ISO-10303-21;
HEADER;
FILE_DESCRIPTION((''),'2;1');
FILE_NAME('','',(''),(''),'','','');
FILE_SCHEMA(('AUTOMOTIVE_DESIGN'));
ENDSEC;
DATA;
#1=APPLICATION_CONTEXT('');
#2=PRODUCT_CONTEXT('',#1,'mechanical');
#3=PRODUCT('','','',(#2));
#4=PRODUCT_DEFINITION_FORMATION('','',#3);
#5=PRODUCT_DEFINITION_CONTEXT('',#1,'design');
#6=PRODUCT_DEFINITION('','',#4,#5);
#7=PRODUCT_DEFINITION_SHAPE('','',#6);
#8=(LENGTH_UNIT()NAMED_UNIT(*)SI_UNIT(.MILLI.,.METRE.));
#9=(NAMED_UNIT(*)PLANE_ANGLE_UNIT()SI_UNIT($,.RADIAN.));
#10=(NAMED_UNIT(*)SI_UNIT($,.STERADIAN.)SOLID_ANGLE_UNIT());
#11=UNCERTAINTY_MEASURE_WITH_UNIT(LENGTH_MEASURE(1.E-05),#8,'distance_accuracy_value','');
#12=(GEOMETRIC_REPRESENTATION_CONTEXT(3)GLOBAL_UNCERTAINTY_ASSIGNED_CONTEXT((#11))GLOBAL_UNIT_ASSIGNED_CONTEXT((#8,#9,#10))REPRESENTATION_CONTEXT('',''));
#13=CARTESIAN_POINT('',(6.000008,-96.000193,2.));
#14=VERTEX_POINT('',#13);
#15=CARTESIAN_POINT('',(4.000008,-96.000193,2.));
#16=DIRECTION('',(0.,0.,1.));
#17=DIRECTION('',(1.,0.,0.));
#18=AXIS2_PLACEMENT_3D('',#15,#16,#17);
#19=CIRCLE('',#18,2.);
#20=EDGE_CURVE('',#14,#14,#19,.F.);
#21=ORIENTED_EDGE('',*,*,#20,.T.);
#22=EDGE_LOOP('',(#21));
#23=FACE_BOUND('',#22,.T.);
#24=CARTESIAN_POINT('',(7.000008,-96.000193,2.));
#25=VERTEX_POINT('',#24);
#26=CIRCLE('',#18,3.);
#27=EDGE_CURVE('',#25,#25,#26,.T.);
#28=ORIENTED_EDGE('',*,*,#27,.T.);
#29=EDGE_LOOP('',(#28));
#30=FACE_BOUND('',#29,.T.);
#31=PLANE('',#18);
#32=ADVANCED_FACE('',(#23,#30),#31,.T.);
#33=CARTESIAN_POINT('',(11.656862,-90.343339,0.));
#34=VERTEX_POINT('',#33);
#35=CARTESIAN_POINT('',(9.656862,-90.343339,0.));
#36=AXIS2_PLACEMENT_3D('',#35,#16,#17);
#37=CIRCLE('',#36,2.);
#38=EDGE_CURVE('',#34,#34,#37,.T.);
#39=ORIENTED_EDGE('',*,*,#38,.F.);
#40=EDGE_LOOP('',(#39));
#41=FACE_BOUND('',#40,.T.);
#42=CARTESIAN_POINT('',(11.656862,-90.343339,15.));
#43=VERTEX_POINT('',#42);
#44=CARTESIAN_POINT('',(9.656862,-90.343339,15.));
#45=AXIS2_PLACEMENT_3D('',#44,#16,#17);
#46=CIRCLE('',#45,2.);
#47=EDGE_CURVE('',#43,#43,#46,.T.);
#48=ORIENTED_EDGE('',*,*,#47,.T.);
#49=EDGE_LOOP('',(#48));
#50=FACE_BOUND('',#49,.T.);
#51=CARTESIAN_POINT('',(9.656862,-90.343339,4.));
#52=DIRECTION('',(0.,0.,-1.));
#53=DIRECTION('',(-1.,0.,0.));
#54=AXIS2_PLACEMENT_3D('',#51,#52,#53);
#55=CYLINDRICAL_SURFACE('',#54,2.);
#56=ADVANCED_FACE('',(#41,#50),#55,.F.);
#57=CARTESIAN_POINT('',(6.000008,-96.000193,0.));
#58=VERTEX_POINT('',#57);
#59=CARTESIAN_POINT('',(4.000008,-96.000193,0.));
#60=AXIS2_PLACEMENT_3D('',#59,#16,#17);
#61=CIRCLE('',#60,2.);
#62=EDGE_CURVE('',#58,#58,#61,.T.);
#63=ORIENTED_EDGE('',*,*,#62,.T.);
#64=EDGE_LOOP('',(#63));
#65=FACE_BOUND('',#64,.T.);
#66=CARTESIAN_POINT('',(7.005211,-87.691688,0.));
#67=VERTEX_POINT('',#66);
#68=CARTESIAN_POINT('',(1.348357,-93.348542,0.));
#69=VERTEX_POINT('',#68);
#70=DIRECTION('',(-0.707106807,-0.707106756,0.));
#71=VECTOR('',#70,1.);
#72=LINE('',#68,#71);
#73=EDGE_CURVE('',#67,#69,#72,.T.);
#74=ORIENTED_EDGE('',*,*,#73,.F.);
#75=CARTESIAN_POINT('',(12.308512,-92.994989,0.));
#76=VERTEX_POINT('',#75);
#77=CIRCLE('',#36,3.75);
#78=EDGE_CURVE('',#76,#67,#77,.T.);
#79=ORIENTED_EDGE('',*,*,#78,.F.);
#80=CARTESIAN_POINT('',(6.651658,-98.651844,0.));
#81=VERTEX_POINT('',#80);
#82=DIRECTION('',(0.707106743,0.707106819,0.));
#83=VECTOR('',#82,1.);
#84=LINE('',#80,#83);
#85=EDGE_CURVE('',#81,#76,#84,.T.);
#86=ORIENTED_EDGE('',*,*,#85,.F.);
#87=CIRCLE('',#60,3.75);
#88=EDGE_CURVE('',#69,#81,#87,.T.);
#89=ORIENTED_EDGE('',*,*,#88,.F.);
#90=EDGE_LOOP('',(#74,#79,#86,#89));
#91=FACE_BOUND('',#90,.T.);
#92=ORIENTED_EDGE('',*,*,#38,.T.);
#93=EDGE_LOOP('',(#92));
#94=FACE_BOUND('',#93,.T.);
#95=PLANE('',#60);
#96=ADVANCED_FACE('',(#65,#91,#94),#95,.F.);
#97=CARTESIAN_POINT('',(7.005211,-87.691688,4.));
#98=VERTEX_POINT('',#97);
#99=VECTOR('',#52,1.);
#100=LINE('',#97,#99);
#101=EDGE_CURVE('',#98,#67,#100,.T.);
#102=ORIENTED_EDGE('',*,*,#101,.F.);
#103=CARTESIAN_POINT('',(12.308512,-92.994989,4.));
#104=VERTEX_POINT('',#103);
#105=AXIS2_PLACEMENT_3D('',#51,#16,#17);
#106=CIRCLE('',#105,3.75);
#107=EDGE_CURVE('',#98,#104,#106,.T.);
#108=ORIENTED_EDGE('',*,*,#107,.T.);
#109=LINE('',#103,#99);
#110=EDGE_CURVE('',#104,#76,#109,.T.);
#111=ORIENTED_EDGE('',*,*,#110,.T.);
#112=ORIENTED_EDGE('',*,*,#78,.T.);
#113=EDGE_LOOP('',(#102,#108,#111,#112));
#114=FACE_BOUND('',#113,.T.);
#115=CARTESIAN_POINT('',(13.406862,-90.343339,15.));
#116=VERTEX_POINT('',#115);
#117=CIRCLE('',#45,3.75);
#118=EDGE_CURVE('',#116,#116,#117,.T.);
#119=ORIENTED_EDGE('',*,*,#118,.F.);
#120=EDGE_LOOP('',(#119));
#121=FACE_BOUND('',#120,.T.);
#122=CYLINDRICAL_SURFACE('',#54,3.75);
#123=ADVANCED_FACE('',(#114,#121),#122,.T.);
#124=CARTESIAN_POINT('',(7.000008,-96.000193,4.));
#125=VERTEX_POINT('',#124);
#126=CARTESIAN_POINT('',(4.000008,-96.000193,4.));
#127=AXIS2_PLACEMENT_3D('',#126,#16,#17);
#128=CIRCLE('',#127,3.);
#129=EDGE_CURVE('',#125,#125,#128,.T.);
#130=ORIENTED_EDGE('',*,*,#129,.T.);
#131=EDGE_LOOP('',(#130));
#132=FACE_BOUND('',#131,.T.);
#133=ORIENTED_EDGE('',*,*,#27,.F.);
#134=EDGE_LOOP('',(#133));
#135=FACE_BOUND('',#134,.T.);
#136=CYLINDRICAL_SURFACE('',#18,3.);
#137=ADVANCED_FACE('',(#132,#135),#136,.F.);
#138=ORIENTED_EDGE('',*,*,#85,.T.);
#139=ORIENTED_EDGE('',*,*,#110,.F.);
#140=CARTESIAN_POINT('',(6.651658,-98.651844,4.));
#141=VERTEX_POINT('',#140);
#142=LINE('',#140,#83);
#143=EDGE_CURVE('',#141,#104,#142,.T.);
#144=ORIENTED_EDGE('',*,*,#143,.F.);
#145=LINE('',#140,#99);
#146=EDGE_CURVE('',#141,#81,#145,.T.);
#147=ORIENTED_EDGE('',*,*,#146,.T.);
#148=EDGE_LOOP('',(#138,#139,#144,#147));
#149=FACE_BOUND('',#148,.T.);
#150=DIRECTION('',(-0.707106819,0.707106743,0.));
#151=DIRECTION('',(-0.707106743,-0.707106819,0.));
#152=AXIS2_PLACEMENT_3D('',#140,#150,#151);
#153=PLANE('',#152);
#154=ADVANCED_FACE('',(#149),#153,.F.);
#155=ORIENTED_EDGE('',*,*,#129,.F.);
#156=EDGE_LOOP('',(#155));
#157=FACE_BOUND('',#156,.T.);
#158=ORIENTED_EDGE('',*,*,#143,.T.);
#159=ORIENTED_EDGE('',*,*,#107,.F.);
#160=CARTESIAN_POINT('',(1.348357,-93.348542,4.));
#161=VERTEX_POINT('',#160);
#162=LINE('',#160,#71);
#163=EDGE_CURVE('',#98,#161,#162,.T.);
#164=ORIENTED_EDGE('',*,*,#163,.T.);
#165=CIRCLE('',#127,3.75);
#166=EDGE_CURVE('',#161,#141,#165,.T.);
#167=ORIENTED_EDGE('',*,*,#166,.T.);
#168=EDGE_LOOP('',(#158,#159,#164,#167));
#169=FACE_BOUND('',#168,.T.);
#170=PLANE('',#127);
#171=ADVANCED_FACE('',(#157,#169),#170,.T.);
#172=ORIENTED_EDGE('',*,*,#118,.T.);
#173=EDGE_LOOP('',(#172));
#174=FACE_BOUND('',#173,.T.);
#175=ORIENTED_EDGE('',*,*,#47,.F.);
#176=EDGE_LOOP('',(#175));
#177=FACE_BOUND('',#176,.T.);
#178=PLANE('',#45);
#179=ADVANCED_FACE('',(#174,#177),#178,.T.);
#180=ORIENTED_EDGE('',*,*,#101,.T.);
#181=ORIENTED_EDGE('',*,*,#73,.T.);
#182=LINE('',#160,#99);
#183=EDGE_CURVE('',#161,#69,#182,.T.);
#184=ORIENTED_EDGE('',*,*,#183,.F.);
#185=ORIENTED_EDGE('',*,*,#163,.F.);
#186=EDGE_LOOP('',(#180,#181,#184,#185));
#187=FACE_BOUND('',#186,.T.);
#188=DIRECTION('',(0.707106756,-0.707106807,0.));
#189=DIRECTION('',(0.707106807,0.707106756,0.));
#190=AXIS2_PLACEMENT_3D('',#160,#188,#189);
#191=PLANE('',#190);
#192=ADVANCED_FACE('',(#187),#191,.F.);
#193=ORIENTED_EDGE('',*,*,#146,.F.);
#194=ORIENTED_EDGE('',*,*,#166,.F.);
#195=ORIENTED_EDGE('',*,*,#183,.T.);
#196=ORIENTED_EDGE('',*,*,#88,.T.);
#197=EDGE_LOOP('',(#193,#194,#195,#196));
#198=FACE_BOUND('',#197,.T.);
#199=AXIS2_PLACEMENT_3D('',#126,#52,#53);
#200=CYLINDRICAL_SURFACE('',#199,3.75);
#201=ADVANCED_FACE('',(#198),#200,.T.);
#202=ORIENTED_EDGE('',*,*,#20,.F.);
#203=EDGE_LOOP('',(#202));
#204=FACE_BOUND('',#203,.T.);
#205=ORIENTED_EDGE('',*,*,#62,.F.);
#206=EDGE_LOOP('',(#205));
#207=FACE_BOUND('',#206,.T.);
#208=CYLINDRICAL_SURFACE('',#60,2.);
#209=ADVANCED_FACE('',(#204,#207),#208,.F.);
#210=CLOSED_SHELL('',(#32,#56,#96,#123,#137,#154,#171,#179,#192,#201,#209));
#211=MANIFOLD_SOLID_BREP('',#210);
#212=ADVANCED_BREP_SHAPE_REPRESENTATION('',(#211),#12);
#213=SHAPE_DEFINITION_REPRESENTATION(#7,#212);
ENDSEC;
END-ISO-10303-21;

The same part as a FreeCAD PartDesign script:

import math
import FreeCAD as App
import Part
import Sketcher
Q = App.Units.Quantity

doc = App.newDocument("Part")
body = doc.addObject("PartDesign::Body", "Body")

sketch1 = body.newObject("Sketcher::SketchObject", "Sketch")
sketch1.AttachmentSupport = (doc.getObject("XY_Plane"), [""])
sketch1.MapMode = "FlatFace"
sketch1.addGeometry([
    Part.LineSegment(App.Vector(7, -87.7, 0), App.Vector(1.3, -93.3, 0)),
    Part.ArcOfCircle(Part.Circle(App.Vector(4, -96, 0), App.Vector(0, 0, 1), 3.8), math.radians(135), math.radians(315)),
    Part.LineSegment(App.Vector(6.7, -98.7, 0), App.Vector(12.3, -93, 0)),
    Part.ArcOfCircle(Part.Circle(App.Vector(9.7, -90.3, 0), App.Vector(0, 0, 1), 3.8), math.radians(-45), math.radians(135)),
    Part.Circle(App.Vector(9.7, -90.3, 0), App.Vector(0, 0, 1), 2),
], False)
sketch1.addConstraint([
    Sketcher.Constraint("Tangent", 0, 2, 1, 1),
    Sketcher.Constraint("Tangent", 1, 2, 2, 1),
    Sketcher.Constraint("Tangent", 2, 2, 3, 1),
    Sketcher.Constraint("Tangent", 3, 2, 0, 1),
    Sketcher.Constraint("Coincident", 4, 3, 3, 3),
    Sketcher.Constraint("Equal", 1, 3),
    Sketcher.Constraint("Diameter", 4, 4.0),
    Sketcher.Constraint("Angle", 0, Q("-135.000002 deg")),
    Sketcher.Constraint("Radius", 1, 3.75),
    Sketcher.Constraint("Distance", 0, 8.0),
    Sketcher.Constraint("DistanceX", -1, 1, 3, 3, 9.656862),
    Sketcher.Constraint("DistanceY", 3, 3, -1, 1, 90.343339),
])
pad1 = body.newObject("PartDesign::Pad", "Pad")
pad1.Profile = sketch1
pad1.Length = 4

sketch2 = body.newObject("Sketcher::SketchObject", "Sketch001")
sketch2.AttachmentSupport = (doc.getObject("XY_Plane"), [""])
sketch2.MapMode = "FlatFace"
sketch2.AttachmentOffset = App.Placement(App.Vector(0, 0, 4), App.Rotation())
sketch2.addGeometry(Part.Circle(App.Vector(4, -96, 0), App.Vector(0, 0, 1), 2), False)
sketch2.addConstraint([
    Sketcher.Constraint("Diameter", 0, 4.0),
    Sketcher.Constraint("DistanceX", -1, 1, 0, 3, 4.000008),
    Sketcher.Constraint("DistanceY", 0, 3, -1, 1, 96.000193),
])
pocket1 = body.newObject("PartDesign::Pocket", "Pocket")
pocket1.Profile = sketch2
pocket1.Length = 4

sketch3 = body.newObject("Sketcher::SketchObject", "Sketch002")
sketch3.AttachmentSupport = (doc.getObject("XY_Plane"), [""])
sketch3.MapMode = "FlatFace"
sketch3.AttachmentOffset = App.Placement(App.Vector(0, 0, 4), App.Rotation())
sketch3.addGeometry(Part.Circle(App.Vector(4, -96, 0), App.Vector(0, 0, 1), 3), False)
sketch3.addConstraint([
    Sketcher.Constraint("Diameter", 0, 6.0),
    Sketcher.Constraint("DistanceX", -1, 1, 0, 3, 4.000008),
    Sketcher.Constraint("DistanceY", 0, 3, -1, 1, 96.000193),
])
pocket2 = body.newObject("PartDesign::Pocket", "Pocket001")
pocket2.Profile = sketch3
pocket2.Length = 2

sketch4 = body.newObject("Sketcher::SketchObject", "Sketch003")
sketch4.AttachmentSupport = (doc.getObject("XY_Plane"), [""])
sketch4.MapMode = "FlatFace"
sketch4.AttachmentOffset = App.Placement(App.Vector(0, 0, 4), App.Rotation())
sketch4.addGeometry([
    Part.Circle(App.Vector(9.7, -90.3, 0), App.Vector(0, 0, 1), 3.8),
    Part.Circle(App.Vector(9.7, -90.3, 0), App.Vector(0, 0, 1), 2),
], False)
sketch4.addConstraint([
    Sketcher.Constraint("Coincident", 1, 3, 0, 3),
    Sketcher.Constraint("Diameter", 1, 4.0),
    Sketcher.Constraint("Diameter", 0, 7.5),
    Sketcher.Constraint("DistanceX", -1, 1, 0, 3, 9.656862),
    Sketcher.Constraint("DistanceY", 0, 3, -1, 1, 90.343339),
])
pad2 = body.newObject("PartDesign::Pad", "Pad001")
pad2.Profile = sketch4
pad2.Length = 11

doc.recompute()
